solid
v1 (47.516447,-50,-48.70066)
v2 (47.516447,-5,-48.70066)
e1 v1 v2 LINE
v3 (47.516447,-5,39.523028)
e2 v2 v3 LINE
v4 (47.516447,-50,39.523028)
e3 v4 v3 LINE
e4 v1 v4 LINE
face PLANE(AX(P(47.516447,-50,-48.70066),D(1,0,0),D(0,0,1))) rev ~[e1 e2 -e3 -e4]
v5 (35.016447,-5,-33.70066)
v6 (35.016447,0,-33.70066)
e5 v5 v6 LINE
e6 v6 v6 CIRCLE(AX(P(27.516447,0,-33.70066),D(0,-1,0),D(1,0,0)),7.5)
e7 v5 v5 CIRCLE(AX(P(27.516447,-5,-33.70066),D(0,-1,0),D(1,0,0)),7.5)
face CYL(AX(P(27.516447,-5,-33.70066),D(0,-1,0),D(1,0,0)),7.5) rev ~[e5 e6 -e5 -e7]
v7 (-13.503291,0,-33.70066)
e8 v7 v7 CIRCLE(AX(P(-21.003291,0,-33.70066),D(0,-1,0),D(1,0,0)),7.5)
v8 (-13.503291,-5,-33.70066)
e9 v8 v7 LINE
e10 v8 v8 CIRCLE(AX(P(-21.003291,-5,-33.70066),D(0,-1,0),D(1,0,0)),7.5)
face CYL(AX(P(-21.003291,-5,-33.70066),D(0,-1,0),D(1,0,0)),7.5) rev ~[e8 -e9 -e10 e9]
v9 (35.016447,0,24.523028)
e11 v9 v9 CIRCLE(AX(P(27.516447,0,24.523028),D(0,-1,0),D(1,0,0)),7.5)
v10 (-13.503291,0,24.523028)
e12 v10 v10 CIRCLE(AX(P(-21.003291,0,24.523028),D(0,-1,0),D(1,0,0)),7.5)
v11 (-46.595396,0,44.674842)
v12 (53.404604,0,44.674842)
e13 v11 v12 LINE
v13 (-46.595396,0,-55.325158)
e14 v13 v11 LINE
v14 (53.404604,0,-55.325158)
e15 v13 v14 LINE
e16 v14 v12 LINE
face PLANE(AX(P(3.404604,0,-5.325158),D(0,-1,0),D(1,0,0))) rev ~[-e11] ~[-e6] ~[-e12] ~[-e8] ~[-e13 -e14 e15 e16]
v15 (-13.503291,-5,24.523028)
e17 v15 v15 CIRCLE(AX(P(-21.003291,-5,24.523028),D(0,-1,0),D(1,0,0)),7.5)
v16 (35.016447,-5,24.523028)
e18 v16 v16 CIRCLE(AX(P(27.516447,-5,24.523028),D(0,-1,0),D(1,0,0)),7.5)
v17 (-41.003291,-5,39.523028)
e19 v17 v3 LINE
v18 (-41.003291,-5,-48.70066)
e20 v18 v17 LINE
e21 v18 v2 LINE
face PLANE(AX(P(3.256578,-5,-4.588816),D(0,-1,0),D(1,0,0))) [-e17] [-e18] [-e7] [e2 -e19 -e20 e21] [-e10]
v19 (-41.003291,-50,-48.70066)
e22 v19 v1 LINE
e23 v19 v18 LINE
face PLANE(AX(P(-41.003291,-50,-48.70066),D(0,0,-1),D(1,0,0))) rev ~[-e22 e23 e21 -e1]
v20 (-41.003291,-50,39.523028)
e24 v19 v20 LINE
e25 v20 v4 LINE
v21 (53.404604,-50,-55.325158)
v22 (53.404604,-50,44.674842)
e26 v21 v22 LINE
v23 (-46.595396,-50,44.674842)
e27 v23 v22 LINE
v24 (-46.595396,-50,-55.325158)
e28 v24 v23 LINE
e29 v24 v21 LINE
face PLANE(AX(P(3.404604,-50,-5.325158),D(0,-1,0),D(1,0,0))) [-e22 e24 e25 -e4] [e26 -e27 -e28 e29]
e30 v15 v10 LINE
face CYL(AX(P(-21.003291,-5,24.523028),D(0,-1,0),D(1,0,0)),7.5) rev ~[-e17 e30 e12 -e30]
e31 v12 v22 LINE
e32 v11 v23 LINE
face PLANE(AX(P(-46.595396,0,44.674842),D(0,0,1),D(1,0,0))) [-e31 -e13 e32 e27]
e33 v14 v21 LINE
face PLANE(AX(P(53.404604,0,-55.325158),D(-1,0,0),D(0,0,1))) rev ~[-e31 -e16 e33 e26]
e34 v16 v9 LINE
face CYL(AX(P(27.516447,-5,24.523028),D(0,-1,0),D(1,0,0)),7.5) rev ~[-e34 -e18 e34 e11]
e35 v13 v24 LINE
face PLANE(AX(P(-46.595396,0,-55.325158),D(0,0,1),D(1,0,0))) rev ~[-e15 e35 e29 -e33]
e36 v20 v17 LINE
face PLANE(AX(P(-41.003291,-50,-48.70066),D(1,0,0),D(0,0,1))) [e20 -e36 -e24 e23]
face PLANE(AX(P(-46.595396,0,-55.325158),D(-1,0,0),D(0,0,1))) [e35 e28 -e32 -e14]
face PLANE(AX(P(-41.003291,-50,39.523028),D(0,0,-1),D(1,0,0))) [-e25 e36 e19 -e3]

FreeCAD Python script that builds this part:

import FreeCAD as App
import Part
import Sketcher

V = App.Vector

doc = App.newDocument("Part")
body = doc.addObject("PartDesign::Body", "Body")

# Sketch on XZ plane
sketch1 = doc.addObject("Sketcher::SketchObject", "Sketch")
body.addObject(sketch1)
sketch1.AttachmentSupport = (doc.XZ_Plane, [""])
sketch1.MapMode = "FlatFace"
sketch1.addGeometry(Part.LineSegment(V(-47, 45, 0), V(-47, -55, 0)), False)
sketch1.addGeometry(Part.LineSegment(V(-47, -55, 0), V(53, -55, 0)), False)
sketch1.addGeometry(Part.LineSegment(V(53, -55, 0), V(53, 45, 0)), False)
sketch1.addGeometry(Part.LineSegment(V(53, 45, 0), V(-47, 45, 0)), False)
sketch1.addConstraint(Sketcher.Constraint("Coincident", 0, 2, 1, 1))
sketch1.addConstraint(Sketcher.Constraint("Coincident", 1, 2, 2, 1))
sketch1.addConstraint(Sketcher.Constraint("Coincident", 2, 2, 3, 1))
sketch1.addConstraint(Sketcher.Constraint("Coincident", 3, 2, 0, 1))
sketch1.addConstraint(Sketcher.Constraint("Vertical", 0))
sketch1.addConstraint(Sketcher.Constraint("Horizontal", 1))
sketch1.addConstraint(Sketcher.Constraint("Vertical", 2))
sketch1.addConstraint(Sketcher.Constraint("Horizontal", 3))
sketch1.addConstraint(Sketcher.Constraint("Equal", 3, 0))
sketch1.addConstraint(Sketcher.Constraint("DistanceX", 1, 1, 1, 2, 100.0))
sketch1.addConstraint(Sketcher.Constraint("DistanceY", 0, 2, -1, 1, 55.325158))
sketch1.addConstraint(Sketcher.Constraint("DistanceX", 0, 2, -1, 1, 46.595396))
pad1 = doc.addObject("PartDesign::Pad", "Pad")
body.addObject(pad1)
pad1.Profile = sketch1
pad1.Length = 50

# Sketch on XZ plane
sketch2 = doc.addObject("Sketcher::SketchObject", "Sketch001")
body.addObject(sketch2)
sketch2.AttachmentSupport = (doc.XZ_Plane, [""])
sketch2.MapMode = "FlatFace"
sketch2.AttachmentOffset = App.Placement(V(0, 0, 50), App.Rotation())
sketch2.addGeometry(Part.LineSegment(V(-41, 40, 0), V(-41, -49, 0)), False)
sketch2.addGeometry(Part.LineSegment(V(-41, -49, 0), V(48, -49, 0)), False)
sketch2.addGeometry(Part.LineSegment(V(48, -49, 0), V(48, 40, 0)), False)
sketch2.addGeometry(Part.LineSegment(V(48, 40, 0), V(-41, 40, 0)), False)
sketch2.addConstraint(Sketcher.Constraint("Coincident", 0, 2, 1, 1))
sketch2.addConstraint(Sketcher.Constraint("Coincident", 1, 2, 2, 1))
sketch2.addConstraint(Sketcher.Constraint("Coincident", 2, 2, 3, 1))
sketch2.addConstraint(Sketcher.Constraint("Coincident", 3, 2, 0, 1))
sketch2.addConstraint(Sketcher.Constraint("Vertical", 0))
sketch2.addConstraint(Sketcher.Constraint("Horizontal", 1))
sketch2.addConstraint(Sketcher.Constraint("Vertical", 2))
sketch2.addConstraint(Sketcher.Constraint("Horizontal", 3))
sketch2.addConstraint(Sketcher.Constraint("DistanceX", 1, 1, 1, 2, 88.519738))
sketch2.addConstraint(Sketcher.Constraint("DistanceY", 0, 2, 0, 1, 88.223688))
sketch2.addConstraint(Sketcher.Constraint("DistanceX", 0, 2, -1, 1, 41.003291))
sketch2.addConstraint(Sketcher.Constraint("DistanceY", 0, 2, -1, 1, 48.70066))
pocket1 = doc.addObject("PartDesign::Pocket", "Pocket")
body.addObject(pocket1)
pocket1.Profile = sketch2
pocket1.Length = 45

# Sketch on XZ plane
sketch3 = doc.addObject("Sketcher::SketchObject", "Sketch002")
body.addObject(sketch3)
sketch3.AttachmentSupport = (doc.XZ_Plane, [""])
sketch3.MapMode = "FlatFace"
sketch3.AttachmentOffset = App.Placement(V(0, 0, 5), App.Rotation())
sketch3.addGeometry(Part.Circle(V(-21, 25, 0), V(0, 0, 1), 8), False)
sketch3.addGeometry(Part.Circle(V(28, 25, 0), V(0, 0, 1), 8), False)
sketch3.addGeometry(Part.Circle(V(28, -34, 0), V(0, 0, 1), 8), False)
sketch3.addGeometry(Part.Circle(V(-21, -34, 0), V(0, 0, 1), 8), False)
sketch3.addConstraint(Sketcher.Constraint("Equal", 0, 1))
sketch3.addConstraint(Sketcher.Constraint("Equal", 1, 2))
sketch3.addConstraint(Sketcher.Constraint("Equal", 2, 3))
sketch3.addConstraint(Sketcher.Constraint("Horizontal", 0, 3, 1, 3))
sketch3.addConstraint(Sketcher.Constraint("Horizontal", 2, 3, 3, 3))
sketch3.addConstraint(Sketcher.Constraint("Vertical", 1, 3, 2, 3))
sketch3.addConstraint(Sketcher.Constraint("Vertical", 0, 3, 3, 3))
sketch3.addConstraint(Sketcher.Constraint("Diameter", 0, 15.0))
sketch3.addConstraint(Sketcher.Constraint("DistanceX", 0, 3, -1, 1, 21.003291))
sketch3.addConstraint(Sketcher.Constraint("DistanceY", -1, 1, 0, 3, 24.523028))
sketch3.addConstraint(Sketcher.Constraint("DistanceY", 2, 3, -1, 1, 33.70066))
sketch3.addConstraint(Sketcher.Constraint("DistanceX", 0, 3, 1, 3, 48.519738))
pocket2 = doc.addObject("PartDesign::Pocket", "Pocket001")
body.addObject(pocket2)
pocket2.Profile = sketch3
pocket2.Length = 25

doc.recompute()
